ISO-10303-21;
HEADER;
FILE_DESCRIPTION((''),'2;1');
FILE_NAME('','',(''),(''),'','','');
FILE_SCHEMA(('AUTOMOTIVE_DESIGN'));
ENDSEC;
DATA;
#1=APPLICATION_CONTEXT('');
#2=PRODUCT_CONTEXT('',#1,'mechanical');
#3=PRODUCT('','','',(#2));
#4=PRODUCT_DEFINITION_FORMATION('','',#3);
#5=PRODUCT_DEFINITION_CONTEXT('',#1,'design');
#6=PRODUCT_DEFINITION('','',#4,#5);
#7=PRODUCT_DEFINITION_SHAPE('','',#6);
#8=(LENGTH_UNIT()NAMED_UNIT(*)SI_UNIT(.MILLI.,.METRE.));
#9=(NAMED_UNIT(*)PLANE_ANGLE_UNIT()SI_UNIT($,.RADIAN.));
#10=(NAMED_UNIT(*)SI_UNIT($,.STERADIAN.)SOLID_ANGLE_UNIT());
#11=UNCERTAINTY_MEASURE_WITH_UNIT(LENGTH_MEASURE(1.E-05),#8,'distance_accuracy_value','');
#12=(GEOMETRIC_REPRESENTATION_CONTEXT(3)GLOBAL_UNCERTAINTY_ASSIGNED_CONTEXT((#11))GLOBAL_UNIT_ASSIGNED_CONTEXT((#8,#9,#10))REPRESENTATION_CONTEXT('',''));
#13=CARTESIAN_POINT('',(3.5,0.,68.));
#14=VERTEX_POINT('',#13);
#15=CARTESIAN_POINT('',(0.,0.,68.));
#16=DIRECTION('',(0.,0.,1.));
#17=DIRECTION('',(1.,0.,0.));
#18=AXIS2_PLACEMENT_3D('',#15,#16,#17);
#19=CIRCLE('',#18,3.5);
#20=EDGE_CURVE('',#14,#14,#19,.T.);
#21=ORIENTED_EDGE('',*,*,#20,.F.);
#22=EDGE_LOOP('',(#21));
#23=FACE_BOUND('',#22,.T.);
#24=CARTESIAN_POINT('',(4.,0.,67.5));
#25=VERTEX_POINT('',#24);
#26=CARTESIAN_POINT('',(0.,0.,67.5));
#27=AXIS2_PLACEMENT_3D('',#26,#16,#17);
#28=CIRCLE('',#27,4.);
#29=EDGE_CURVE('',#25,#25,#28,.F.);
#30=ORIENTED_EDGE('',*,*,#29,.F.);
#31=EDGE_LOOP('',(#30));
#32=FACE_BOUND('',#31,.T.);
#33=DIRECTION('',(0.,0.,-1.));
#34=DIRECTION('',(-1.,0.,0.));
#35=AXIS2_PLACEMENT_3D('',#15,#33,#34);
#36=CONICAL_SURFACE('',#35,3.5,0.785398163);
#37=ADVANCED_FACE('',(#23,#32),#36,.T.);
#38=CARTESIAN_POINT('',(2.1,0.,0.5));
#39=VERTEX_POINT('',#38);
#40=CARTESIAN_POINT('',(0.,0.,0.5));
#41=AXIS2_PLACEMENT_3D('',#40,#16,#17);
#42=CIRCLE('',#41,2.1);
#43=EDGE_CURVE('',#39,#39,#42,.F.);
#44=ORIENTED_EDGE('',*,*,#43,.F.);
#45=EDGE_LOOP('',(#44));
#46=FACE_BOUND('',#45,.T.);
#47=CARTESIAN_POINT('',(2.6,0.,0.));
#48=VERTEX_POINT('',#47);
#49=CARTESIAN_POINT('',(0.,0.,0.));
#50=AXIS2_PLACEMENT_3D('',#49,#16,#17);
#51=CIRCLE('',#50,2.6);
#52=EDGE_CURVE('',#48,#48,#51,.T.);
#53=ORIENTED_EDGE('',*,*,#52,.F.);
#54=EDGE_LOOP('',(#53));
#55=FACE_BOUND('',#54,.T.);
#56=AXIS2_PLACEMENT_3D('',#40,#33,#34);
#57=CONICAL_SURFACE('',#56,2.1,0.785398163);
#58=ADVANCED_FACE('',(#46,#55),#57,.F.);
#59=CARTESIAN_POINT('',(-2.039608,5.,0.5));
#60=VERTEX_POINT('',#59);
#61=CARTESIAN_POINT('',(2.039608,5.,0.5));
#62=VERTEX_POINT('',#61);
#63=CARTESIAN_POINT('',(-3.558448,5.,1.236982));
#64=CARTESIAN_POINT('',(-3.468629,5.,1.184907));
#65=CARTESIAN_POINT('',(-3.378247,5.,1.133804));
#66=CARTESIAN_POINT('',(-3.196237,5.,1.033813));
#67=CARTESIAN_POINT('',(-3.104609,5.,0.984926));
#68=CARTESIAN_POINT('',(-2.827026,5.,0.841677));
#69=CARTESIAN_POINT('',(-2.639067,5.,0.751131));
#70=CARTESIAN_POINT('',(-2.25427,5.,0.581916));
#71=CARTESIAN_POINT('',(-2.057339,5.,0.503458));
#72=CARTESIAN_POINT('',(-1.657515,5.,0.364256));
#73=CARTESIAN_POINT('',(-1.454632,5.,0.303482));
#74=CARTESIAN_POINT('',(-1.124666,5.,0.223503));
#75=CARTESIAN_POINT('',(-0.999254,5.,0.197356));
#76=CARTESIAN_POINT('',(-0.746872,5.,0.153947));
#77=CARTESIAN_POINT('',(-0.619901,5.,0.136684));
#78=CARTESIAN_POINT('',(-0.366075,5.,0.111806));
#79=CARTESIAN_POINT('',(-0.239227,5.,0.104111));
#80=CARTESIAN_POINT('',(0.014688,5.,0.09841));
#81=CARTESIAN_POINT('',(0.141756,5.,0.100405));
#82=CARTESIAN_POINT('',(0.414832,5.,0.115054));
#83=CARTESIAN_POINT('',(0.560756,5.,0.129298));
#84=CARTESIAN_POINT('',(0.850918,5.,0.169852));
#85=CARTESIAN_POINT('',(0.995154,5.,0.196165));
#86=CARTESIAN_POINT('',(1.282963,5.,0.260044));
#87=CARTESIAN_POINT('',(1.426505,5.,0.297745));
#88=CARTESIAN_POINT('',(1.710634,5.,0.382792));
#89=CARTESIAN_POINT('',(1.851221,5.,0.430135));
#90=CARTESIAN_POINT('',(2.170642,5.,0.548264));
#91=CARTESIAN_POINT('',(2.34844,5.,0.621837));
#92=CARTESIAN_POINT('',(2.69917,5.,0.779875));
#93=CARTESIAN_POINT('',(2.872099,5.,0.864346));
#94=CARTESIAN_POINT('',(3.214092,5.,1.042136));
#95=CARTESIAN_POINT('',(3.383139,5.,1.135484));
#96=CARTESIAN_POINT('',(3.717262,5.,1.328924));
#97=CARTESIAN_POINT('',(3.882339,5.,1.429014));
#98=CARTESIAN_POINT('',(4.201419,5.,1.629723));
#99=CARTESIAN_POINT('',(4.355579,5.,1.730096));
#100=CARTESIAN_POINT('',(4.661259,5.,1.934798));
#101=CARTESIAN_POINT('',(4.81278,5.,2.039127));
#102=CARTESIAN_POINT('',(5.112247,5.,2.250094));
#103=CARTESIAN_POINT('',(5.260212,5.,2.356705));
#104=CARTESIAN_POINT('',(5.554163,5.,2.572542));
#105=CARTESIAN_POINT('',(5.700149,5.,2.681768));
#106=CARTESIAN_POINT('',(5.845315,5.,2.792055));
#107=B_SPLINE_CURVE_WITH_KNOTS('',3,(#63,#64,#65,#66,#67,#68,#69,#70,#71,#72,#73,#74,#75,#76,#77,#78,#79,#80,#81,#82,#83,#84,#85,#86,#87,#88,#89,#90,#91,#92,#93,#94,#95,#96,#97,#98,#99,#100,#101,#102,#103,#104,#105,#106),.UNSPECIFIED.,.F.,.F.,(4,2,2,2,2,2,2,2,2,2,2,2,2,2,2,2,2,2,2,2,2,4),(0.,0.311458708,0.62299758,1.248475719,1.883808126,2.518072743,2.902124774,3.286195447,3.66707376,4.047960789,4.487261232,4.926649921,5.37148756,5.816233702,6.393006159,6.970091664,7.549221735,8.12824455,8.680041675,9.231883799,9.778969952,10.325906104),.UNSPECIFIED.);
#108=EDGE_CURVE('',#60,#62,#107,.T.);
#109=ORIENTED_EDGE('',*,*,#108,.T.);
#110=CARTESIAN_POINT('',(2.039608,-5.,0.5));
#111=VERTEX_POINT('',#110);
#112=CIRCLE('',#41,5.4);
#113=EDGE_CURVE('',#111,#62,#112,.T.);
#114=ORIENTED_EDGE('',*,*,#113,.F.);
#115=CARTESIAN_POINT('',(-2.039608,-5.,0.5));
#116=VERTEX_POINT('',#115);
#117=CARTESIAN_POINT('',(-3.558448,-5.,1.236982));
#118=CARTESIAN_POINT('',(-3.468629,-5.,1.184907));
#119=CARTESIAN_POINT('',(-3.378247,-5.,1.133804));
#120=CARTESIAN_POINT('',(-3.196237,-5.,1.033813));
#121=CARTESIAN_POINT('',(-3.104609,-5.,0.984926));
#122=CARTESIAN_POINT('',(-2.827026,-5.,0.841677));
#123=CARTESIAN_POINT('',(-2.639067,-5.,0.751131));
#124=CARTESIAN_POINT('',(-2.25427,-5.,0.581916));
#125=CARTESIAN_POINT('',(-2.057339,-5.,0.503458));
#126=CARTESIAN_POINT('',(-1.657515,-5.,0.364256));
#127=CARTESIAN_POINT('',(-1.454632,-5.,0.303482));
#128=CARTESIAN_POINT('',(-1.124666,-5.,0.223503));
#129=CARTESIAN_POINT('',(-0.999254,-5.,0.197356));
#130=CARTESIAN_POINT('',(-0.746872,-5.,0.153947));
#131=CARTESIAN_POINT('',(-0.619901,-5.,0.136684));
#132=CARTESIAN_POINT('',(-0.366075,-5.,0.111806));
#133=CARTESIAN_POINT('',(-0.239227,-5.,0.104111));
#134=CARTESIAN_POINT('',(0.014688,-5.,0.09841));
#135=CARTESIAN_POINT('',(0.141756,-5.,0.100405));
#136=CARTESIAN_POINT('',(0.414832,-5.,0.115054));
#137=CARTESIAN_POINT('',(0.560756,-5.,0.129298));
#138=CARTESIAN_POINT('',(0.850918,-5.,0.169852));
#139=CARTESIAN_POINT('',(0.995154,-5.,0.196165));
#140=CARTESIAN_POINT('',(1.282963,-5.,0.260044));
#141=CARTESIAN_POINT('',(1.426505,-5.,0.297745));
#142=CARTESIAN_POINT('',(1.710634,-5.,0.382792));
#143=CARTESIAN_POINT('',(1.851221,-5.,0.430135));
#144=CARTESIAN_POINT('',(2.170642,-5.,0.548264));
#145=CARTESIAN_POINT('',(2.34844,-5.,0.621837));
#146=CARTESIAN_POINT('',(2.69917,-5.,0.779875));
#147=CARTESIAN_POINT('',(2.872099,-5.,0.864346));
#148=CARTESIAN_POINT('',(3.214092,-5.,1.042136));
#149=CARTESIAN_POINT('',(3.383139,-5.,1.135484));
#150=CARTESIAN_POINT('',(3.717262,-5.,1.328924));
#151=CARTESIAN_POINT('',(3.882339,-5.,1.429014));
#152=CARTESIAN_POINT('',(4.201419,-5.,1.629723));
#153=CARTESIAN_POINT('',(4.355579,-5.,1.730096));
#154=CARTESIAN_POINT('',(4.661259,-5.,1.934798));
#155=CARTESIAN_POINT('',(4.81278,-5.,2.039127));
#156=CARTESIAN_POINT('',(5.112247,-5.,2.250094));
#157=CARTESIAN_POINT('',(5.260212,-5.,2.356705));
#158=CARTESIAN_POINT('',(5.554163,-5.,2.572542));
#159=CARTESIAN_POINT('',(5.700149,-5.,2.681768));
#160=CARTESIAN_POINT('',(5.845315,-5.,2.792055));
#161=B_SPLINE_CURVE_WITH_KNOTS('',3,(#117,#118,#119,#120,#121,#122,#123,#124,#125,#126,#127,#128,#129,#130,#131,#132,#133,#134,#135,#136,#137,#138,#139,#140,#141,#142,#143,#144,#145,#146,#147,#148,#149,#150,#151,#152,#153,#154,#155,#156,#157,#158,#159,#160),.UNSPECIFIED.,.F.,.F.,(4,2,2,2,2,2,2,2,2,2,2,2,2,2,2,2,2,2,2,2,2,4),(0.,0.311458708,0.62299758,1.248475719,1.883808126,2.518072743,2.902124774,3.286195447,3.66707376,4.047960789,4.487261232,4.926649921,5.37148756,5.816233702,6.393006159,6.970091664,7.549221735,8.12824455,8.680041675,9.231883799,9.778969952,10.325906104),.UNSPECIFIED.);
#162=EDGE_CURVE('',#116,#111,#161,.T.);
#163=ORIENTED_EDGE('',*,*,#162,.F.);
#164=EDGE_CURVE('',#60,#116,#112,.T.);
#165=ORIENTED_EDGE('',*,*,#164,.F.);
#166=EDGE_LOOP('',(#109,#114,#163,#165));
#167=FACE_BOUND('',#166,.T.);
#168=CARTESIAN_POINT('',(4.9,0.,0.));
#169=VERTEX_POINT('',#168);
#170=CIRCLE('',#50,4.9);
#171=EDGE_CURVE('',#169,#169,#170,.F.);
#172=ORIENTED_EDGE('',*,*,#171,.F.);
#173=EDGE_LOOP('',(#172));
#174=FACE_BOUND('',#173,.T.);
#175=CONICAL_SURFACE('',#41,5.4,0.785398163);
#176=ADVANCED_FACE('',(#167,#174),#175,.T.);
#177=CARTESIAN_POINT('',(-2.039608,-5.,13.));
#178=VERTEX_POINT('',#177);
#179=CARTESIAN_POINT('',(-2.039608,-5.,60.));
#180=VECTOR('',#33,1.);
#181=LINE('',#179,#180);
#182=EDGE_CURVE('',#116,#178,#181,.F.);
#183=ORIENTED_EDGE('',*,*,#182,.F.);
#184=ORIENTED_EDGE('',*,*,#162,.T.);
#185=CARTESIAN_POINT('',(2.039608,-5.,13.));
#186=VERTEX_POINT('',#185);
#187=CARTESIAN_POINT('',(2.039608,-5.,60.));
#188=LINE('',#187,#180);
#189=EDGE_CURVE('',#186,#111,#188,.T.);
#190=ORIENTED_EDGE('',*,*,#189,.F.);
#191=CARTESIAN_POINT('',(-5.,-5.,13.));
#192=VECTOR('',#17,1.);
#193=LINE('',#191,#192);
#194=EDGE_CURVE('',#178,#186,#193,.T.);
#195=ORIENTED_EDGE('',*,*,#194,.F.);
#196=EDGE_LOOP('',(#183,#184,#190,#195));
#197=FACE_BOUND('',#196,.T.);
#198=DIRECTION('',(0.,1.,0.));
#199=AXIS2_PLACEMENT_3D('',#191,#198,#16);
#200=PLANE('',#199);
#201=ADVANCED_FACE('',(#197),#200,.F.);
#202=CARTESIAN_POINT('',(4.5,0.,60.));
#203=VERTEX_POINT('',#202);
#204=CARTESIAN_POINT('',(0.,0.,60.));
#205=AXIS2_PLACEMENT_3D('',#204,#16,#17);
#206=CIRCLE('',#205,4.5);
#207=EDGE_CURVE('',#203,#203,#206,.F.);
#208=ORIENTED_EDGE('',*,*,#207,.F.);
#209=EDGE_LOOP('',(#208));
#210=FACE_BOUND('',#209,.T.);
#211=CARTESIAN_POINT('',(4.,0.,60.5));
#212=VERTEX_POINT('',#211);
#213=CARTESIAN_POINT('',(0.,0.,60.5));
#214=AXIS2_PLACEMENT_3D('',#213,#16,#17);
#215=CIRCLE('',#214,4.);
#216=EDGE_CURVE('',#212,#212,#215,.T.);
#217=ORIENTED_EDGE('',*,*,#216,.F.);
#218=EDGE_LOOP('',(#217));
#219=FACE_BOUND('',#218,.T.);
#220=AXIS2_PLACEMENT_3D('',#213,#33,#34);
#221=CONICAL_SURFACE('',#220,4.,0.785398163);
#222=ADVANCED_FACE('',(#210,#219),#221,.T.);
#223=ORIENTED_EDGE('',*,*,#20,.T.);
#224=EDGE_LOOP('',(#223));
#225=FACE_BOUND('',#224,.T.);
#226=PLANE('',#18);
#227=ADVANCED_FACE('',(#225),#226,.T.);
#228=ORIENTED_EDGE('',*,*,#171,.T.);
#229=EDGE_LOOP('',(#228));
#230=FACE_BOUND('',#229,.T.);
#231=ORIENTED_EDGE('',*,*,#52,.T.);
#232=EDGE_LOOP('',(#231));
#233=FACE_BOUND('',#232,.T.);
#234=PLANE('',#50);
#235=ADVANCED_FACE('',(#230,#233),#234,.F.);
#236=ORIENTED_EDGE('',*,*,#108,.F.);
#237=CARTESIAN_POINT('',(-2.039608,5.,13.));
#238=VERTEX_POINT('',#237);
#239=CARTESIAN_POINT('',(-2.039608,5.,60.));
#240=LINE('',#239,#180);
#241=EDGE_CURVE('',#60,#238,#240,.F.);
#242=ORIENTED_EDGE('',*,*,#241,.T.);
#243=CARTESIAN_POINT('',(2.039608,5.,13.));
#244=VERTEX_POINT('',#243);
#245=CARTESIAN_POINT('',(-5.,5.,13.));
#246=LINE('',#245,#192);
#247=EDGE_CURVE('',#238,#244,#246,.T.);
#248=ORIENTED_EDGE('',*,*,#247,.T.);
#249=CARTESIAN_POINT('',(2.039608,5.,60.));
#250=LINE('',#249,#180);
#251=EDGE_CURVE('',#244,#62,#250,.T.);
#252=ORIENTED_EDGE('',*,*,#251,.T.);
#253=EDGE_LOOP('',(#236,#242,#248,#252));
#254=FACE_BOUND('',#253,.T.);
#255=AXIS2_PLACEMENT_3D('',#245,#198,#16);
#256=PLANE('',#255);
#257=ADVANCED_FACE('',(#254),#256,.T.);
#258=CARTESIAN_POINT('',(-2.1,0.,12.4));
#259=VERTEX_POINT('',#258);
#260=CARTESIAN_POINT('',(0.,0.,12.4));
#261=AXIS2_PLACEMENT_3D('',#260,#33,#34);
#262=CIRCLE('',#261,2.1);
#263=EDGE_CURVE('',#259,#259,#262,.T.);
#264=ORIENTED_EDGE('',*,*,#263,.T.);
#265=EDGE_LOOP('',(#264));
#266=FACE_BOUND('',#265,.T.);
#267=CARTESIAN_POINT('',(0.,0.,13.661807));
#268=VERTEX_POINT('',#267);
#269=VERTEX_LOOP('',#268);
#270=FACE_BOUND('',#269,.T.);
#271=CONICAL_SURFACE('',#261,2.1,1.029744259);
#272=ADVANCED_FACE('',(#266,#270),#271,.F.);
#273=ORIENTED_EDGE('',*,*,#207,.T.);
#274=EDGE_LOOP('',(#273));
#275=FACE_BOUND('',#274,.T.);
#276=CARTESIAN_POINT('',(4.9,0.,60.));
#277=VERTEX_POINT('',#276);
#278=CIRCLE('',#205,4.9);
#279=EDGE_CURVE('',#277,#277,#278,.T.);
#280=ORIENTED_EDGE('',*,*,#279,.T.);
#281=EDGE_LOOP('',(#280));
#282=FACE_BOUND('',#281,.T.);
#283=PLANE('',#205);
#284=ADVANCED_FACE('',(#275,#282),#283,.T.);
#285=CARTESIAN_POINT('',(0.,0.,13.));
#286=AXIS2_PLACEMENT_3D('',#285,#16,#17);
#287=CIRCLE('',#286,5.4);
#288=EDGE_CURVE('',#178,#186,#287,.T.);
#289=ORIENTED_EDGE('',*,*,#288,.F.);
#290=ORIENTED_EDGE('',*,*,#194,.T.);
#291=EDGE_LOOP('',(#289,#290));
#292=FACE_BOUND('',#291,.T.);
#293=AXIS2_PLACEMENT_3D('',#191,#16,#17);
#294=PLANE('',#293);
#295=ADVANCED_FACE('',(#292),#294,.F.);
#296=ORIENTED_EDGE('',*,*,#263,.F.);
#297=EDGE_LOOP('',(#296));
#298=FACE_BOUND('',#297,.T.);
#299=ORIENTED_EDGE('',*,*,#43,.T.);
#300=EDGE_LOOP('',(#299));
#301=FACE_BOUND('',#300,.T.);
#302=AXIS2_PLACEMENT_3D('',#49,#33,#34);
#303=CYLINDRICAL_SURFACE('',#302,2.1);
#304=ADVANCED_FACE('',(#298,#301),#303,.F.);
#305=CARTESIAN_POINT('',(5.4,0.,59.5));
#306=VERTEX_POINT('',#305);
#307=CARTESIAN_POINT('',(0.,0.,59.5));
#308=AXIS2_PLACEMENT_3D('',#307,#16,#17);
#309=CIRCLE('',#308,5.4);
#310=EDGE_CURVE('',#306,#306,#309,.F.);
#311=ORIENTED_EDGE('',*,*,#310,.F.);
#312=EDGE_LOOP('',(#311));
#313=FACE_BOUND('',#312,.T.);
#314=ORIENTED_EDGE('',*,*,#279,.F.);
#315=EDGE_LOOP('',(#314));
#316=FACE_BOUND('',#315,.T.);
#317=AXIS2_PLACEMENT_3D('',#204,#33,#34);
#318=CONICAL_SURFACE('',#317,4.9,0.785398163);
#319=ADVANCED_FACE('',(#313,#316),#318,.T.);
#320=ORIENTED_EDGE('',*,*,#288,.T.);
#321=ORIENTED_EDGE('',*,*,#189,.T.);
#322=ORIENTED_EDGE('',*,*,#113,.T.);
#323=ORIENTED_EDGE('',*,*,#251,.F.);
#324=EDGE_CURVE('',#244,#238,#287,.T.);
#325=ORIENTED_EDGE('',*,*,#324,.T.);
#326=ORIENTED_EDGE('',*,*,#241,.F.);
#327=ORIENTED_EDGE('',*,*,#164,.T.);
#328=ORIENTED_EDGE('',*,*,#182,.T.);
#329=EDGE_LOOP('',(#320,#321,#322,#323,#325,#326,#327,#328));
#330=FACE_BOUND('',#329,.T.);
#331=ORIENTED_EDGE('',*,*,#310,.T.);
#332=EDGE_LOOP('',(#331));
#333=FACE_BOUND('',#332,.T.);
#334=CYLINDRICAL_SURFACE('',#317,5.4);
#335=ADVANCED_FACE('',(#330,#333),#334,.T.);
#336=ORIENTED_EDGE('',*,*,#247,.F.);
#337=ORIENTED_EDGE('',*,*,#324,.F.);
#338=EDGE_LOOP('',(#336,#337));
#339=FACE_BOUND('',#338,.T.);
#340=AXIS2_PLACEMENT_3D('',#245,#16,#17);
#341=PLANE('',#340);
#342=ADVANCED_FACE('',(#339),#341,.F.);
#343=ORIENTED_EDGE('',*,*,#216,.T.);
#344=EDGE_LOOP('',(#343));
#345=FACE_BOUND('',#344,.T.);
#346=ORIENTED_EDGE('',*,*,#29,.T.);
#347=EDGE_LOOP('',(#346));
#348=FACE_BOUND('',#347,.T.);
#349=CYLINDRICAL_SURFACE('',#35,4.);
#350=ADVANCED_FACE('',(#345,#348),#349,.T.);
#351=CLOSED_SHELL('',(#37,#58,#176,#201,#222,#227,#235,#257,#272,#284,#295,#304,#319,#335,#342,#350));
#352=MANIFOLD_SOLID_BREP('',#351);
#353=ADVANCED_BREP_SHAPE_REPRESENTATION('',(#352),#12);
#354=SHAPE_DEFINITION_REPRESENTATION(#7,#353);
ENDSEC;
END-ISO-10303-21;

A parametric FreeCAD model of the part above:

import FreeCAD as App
import Part
import Sketcher

V = App.Vector
Q = App.Units.Quantity


def edges_at(feature, points):
    """Names of the edges that pass closest to the given points."""
    edges = feature.Shape.Edges
    near = lambda p: min(range(len(edges)), key=lambda i: edges[i].distToShape(Part.Vertex(*p))[0])
    return sorted({f"Edge{near(p) + 1}" for p in points})


def add_polygon(sketch, points):
    """Adds a closed chain of lines whose ends are joined by coincident constraints."""
    first, n = sketch.GeometryCount, len(points)
    for a, b in zip(points, points[1:] + points[:1]):
        sketch.addGeometry(Part.LineSegment(App.Vector(*a, 0), App.Vector(*b, 0)), False)
    for i in range(n):
        sketch.addConstraint(Sketcher.Constraint("Coincident", first + i, 2, first + (i + 1) % n, 1))

doc = App.newDocument("Part")
body = doc.addObject("PartDesign::Body", "Body")

# Sketch on XY plane
sketch1 = body.newObject("Sketcher::SketchObject", "Sketch")
sketch1.AttachmentSupport = (doc.getObject("XY_Plane"), [""])
sketch1.MapMode = "FlatFace"
sketch1.addGeometry(Part.Circle(V(0, 0, 0), V(0, 0, 1), 5), False)
sketch1.addConstraint(Sketcher.Constraint("Coincident", 0, 3, -1, 1))
sketch1.addConstraint(Sketcher.Constraint("Diameter", 0, Q("10.8 mm")))
pad1 = body.newObject("PartDesign::Pad", "Pad")
pad1.Profile = sketch1
pad1.Length = 60
doc.recompute()

chamfer = body.newObject("PartDesign::Chamfer", "Chamfer")
chamfer.Base = (pad1, edges_at(pad1, [(-5.4, 0, 0), (-5.4, 0, 60)]))
chamfer.Size = 0.5

# Sketch on XY plane
sketch2 = body.newObject("Sketcher::SketchObject", "Sketch001")
sketch2.AttachmentSupport = (doc.getObject("XY_Plane"), [""])
sketch2.MapMode = "FlatFace"
sketch2.AttachmentOffset = App.Placement(V(0, 0, 60), App.Rotation())
sketch2.addGeometry(Part.Circle(V(0, 0, 0), V(0, 0, 1), 4), False)
sketch2.addConstraint(Sketcher.Constraint("Coincident", 0, 3, -1, 1))
sketch2.addConstraint(Sketcher.Constraint("Diameter", 0, Q("8 mm")))
pad2 = body.newObject("PartDesign::Pad", "Pad001")
pad2.Profile = sketch2
pad2.Length = 8
doc.recompute()

chamfer2 = body.newObject("PartDesign::Chamfer", "Chamfer001")
chamfer2.Base = (pad2, edges_at(pad2, [(-4, 0, 68)]))
chamfer2.Size = 0.5

# Sketch on XY plane
sketch3 = body.newObject("Sketcher::SketchObject", "Sketch002")
sketch3.AttachmentSupport = (doc.getObject("XY_Plane"), [""])
sketch3.MapMode = "FlatFace"
sketch3.addGeometry(Part.Circle(V(0, 0, 0), V(0, 0, 1), 2.1), False)
sketch3.addConstraint(Sketcher.Constraint("Coincident", 0, 3, -1, 1))
sketch3.addConstraint(Sketcher.Constraint("Diameter", 0, Q("4.2 mm")))
doc.recompute()
hole = body.newObject("PartDesign::Hole", "Hole")
hole.Profile = sketch3
hole.ThreadType = "None"
hole.Diameter = 4.2
hole.DepthType = "Dimension"
hole.Depth = 12.4
hole.DrillPoint = "Angled"
hole.DrillPointAngle = 118
hole.Reversed = True
doc.recompute()

chamfer3 = body.newObject("PartDesign::Chamfer", "Chamfer002")
chamfer3.Base = (hole, edges_at(hole, [(-2.1, 0, 0)]))
chamfer3.Size = 0.5

# Sketch on XY plane
sketch4 = body.newObject("Sketcher::SketchObject", "Sketch003")
sketch4.AttachmentSupport = (doc.getObject("XY_Plane"), [""])
sketch4.MapMode = "FlatFace"
add_polygon(sketch4, [(-5, 8), (-5, 5), (5, 5), (5, 8)])  # lines 0-3
sketch4.addConstraint(Sketcher.Constraint("Vertical", 0))
sketch4.addConstraint(Sketcher.Constraint("Horizontal", 1))
sketch4.addConstraint(Sketcher.Constraint("Vertical", 2))
sketch4.addConstraint(Sketcher.Constraint("Horizontal", 3))
sketch4.addConstraint(Sketcher.Constraint("DistanceX", 1, 1, 1, 2, Q("10 mm")))
sketch4.addConstraint(Sketcher.Constraint("DistanceY", 0, 2, 0, 1, Q("3 mm")))
sketch4.addConstraint(Sketcher.Constraint("DistanceX", 0, 2, -1, 1, Q("5 mm")))
sketch4.addConstraint(Sketcher.Constraint("DistanceY", -1, 1, 0, 2, Q("5 mm")))
pocket1 = body.newObject("PartDesign::Pocket", "Pocket")
pocket1.Profile = sketch4
pocket1.Length = 13
pocket1.Reversed = True
doc.recompute()

mirrored = body.newObject("PartDesign::Mirrored", "Mirrored")
mirrored.Originals = [pocket1]
mirrored.MirrorPlane = (doc.getObject("XZ_Plane"), [""])
body.Tip = mirrored
doc.recompute()

chamfer4 = body.newObject("PartDesign::Chamfer", "Chamfer003")
chamfer4.Base = (mirrored, edges_at(mirrored, [(-4, 0, 60)]))
chamfer4.Size = 0.5

doc.recompute()
